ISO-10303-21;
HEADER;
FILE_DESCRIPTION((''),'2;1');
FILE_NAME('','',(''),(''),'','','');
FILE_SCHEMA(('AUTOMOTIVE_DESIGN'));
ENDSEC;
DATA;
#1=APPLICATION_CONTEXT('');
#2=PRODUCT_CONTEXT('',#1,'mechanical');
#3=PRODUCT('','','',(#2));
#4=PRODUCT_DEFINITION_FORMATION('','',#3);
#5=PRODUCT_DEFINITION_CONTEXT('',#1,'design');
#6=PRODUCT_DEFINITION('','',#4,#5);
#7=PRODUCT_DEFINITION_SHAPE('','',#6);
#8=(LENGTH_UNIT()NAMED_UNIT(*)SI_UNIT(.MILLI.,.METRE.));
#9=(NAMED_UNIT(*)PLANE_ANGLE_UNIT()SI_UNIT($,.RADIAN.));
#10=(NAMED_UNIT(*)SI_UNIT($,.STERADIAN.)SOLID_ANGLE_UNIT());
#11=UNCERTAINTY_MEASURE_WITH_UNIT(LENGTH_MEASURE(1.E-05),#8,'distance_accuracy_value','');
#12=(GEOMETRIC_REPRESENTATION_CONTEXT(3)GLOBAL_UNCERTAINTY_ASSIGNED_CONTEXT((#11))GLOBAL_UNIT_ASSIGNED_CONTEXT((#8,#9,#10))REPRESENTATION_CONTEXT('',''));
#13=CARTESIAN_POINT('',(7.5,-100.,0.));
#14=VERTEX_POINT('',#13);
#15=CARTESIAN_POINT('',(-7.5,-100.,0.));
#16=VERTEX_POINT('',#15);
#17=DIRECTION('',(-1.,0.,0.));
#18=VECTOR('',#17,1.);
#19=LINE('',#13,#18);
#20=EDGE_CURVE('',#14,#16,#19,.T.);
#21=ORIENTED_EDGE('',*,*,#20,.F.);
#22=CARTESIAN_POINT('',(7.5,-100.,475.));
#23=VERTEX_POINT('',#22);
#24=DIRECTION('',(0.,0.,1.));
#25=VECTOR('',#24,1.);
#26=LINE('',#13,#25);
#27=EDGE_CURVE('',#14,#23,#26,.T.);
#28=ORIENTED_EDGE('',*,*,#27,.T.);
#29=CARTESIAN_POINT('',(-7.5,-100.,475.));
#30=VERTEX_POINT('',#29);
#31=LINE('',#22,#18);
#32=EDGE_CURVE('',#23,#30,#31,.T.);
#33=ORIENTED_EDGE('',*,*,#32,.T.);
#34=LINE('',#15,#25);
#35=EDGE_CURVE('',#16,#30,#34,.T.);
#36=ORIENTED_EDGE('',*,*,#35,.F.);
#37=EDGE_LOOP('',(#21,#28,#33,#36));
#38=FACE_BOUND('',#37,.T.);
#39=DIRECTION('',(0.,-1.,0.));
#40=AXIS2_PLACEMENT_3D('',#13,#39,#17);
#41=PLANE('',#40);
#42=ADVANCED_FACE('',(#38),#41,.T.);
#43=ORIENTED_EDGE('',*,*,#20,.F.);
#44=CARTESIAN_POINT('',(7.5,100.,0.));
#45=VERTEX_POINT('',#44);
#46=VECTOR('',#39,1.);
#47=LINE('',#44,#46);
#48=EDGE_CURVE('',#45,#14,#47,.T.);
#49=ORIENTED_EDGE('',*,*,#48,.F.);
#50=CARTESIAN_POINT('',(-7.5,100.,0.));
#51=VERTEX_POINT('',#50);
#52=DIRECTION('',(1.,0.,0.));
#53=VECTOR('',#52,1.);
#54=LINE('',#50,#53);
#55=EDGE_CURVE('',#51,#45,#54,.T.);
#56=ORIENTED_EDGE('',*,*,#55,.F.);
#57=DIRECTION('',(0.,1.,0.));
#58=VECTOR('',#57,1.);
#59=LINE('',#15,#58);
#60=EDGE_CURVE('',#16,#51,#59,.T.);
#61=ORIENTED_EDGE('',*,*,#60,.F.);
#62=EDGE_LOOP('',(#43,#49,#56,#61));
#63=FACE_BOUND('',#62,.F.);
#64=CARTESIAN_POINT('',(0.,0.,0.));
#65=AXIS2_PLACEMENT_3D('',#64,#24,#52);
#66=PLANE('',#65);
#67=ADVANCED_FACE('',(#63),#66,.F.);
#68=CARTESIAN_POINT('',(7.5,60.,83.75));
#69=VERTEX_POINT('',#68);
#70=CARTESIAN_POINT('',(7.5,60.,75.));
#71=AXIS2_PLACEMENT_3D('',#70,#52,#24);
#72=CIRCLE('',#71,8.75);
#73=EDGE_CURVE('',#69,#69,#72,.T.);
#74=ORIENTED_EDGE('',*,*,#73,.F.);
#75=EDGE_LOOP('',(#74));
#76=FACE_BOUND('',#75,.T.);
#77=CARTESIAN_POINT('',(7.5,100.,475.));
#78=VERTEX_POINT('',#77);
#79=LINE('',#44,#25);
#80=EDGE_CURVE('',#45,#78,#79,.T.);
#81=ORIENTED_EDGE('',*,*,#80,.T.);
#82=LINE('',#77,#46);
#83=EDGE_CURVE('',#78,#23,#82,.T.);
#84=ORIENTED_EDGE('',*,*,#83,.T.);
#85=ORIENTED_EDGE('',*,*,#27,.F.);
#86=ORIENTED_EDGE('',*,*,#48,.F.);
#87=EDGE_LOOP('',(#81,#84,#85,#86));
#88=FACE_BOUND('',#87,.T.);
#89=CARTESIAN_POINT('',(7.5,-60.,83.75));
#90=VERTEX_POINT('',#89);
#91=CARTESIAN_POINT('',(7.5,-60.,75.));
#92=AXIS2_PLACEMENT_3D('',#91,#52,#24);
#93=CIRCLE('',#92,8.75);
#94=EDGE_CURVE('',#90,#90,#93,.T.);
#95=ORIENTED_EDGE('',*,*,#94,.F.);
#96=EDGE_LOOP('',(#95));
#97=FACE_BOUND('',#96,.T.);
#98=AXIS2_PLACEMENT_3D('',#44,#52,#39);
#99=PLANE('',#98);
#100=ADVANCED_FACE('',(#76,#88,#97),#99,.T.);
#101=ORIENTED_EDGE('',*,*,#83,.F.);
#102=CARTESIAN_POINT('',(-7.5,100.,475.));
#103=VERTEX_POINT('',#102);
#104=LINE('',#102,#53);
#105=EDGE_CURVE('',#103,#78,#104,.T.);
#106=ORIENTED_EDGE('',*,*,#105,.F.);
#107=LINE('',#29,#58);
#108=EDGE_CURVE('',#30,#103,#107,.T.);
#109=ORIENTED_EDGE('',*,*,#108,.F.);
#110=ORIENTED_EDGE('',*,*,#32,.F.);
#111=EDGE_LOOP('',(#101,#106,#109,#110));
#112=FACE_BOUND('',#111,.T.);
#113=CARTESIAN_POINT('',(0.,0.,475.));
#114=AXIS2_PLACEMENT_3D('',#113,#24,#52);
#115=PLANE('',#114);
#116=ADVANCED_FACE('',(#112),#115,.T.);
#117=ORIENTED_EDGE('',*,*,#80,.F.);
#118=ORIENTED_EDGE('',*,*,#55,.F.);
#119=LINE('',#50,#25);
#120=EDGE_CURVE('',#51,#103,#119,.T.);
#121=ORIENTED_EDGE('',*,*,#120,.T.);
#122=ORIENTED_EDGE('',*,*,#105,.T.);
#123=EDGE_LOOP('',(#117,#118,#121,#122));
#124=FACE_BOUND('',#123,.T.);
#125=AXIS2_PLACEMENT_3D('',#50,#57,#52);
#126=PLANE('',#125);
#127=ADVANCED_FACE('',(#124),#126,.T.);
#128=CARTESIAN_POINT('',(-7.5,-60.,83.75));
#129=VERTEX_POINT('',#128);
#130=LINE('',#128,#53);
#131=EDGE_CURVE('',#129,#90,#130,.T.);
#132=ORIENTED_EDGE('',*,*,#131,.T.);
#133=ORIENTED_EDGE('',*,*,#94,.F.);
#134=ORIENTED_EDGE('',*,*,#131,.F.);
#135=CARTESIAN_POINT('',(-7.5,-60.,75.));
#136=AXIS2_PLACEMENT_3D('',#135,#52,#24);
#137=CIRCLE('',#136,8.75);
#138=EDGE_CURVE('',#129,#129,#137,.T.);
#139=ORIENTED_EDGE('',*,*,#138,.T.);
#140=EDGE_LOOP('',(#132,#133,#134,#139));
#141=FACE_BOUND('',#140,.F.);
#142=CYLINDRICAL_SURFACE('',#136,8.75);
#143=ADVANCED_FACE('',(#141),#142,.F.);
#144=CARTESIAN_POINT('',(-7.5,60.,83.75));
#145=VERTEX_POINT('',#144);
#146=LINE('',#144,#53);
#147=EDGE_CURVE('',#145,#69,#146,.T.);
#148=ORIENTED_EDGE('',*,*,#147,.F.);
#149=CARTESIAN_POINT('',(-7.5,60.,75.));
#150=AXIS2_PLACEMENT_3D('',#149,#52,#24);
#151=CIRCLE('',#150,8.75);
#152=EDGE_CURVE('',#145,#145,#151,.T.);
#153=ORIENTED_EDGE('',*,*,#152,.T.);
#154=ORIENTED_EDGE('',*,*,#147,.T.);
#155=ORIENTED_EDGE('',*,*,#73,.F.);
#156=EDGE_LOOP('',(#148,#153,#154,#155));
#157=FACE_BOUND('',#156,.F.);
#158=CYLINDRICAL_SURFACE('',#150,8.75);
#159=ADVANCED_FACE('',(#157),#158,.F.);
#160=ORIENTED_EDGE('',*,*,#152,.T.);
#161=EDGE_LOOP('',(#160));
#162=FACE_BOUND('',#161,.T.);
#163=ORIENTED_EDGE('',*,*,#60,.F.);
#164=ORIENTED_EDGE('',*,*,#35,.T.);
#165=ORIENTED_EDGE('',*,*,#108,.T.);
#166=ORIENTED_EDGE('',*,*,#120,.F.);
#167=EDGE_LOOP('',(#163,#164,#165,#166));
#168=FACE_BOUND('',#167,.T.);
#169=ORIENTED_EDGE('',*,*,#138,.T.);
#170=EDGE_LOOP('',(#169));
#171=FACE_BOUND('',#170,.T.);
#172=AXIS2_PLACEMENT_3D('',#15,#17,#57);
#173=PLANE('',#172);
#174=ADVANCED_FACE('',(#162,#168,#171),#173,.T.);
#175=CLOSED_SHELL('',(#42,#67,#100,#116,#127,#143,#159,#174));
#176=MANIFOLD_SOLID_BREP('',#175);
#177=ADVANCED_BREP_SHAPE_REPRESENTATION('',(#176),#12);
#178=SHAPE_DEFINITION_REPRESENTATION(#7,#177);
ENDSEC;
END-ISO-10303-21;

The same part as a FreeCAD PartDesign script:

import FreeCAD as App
import Part
import Sketcher
from FreeCAD import Vector


def add_polygon(sketch, points):
    """Adds a closed chain of lines whose ends are joined by coincident constraints."""
    first, n = sketch.GeometryCount, len(points)
    for a, b in zip(points, points[1:] + points[:1]):
        sketch.addGeometry(Part.LineSegment(App.Vector(*a, 0), App.Vector(*b, 0)), False)
    for i in range(n):
        sketch.addConstraint(Sketcher.Constraint("Coincident", first + i, 2, first + (i + 1) % n, 1))

doc = App.newDocument("Part")
body = doc.addObject("PartDesign::Body", "Body")

# Sketch on XY plane
sketch1 = body.newObject("Sketcher::SketchObject", "Sketch")
sketch1.AttachmentSupport = (doc.getObject("XY_Plane"), [""])
sketch1.MapMode = "FlatFace"
add_polygon(sketch1, [(-8, -100), (8, -100), (8, 100), (-8, 100)])  # lines 0-3
sketch1.addConstraint([
    Sketcher.Constraint("Horizontal", 0),
    Sketcher.Constraint("Vertical", 1),
    Sketcher.Constraint("Horizontal", 2),
    Sketcher.Constraint("Vertical", 3),
    Sketcher.Constraint("Symmetric", 0, 2, 2, 2, -1, 1),
    Sketcher.Constraint("DistanceX", 0, 1, 0, 2, 15.0),
    Sketcher.Constraint("DistanceY", 1, 1, 1, 2, 200.0),
])
pad1 = body.newObject("PartDesign::Pad", "Pad")
pad1.Profile = sketch1
pad1.Length = 475

# Sketch on YZ plane
sketch2 = body.newObject("Sketcher::SketchObject", "Sketch001")
sketch2.AttachmentSupport = (doc.getObject("YZ_Plane"), [""])
sketch2.MapMode = "FlatFace"
sketch2.AttachmentOffset = App.Placement(Vector(0, 0, -7.5), App.Rotation())
sketch2.addGeometry(Part.Circle(Vector(60, 75, 0), Vector(0, 0, 1), 9), False)
sketch2.addConstraint([
    Sketcher.Constraint("Diameter", 0, 17.5),
    Sketcher.Constraint("DistanceX", -1, 1, 0, 3, 60.0),
    Sketcher.Constraint("DistanceY", -1, 1, 0, 3, 75.0),
])
doc.recompute()
hole = body.newObject("PartDesign::Hole", "Hole")
hole.Profile = sketch2
hole.ThreadType = "None"
hole.Diameter = 17.5
hole.DepthType = "ThroughAll"
hole.Reversed = True

# Sketch on YZ plane
sketch3 = body.newObject("Sketcher::SketchObject", "Sketch002")
sketch3.AttachmentSupport = (doc.getObject("YZ_Plane"), [""])
sketch3.MapMode = "FlatFace"
sketch3.AttachmentOffset = App.Placement(Vector(0, 0, -7.5), App.Rotation())
sketch3.addGeometry(Part.Circle(Vector(-60, 75, 0), Vector(0, 0, 1), 9), False)
sketch3.addConstraint([
    Sketcher.Constraint("Diameter", 0, 17.5),
    Sketcher.Constraint("DistanceX", 0, 3, -1, 1, 60.0),
    Sketcher.Constraint("DistanceY", -1, 1, 0, 3, 75.0),
])
doc.recompute()
hole2 = body.newObject("PartDesign::Hole", "Hole001")
hole2.Profile = sketch3
hole2.ThreadType = "None"
hole2.Diameter = 17.5
hole2.DepthType = "ThroughAll"
hole2.Reversed = True

doc.recompute()
